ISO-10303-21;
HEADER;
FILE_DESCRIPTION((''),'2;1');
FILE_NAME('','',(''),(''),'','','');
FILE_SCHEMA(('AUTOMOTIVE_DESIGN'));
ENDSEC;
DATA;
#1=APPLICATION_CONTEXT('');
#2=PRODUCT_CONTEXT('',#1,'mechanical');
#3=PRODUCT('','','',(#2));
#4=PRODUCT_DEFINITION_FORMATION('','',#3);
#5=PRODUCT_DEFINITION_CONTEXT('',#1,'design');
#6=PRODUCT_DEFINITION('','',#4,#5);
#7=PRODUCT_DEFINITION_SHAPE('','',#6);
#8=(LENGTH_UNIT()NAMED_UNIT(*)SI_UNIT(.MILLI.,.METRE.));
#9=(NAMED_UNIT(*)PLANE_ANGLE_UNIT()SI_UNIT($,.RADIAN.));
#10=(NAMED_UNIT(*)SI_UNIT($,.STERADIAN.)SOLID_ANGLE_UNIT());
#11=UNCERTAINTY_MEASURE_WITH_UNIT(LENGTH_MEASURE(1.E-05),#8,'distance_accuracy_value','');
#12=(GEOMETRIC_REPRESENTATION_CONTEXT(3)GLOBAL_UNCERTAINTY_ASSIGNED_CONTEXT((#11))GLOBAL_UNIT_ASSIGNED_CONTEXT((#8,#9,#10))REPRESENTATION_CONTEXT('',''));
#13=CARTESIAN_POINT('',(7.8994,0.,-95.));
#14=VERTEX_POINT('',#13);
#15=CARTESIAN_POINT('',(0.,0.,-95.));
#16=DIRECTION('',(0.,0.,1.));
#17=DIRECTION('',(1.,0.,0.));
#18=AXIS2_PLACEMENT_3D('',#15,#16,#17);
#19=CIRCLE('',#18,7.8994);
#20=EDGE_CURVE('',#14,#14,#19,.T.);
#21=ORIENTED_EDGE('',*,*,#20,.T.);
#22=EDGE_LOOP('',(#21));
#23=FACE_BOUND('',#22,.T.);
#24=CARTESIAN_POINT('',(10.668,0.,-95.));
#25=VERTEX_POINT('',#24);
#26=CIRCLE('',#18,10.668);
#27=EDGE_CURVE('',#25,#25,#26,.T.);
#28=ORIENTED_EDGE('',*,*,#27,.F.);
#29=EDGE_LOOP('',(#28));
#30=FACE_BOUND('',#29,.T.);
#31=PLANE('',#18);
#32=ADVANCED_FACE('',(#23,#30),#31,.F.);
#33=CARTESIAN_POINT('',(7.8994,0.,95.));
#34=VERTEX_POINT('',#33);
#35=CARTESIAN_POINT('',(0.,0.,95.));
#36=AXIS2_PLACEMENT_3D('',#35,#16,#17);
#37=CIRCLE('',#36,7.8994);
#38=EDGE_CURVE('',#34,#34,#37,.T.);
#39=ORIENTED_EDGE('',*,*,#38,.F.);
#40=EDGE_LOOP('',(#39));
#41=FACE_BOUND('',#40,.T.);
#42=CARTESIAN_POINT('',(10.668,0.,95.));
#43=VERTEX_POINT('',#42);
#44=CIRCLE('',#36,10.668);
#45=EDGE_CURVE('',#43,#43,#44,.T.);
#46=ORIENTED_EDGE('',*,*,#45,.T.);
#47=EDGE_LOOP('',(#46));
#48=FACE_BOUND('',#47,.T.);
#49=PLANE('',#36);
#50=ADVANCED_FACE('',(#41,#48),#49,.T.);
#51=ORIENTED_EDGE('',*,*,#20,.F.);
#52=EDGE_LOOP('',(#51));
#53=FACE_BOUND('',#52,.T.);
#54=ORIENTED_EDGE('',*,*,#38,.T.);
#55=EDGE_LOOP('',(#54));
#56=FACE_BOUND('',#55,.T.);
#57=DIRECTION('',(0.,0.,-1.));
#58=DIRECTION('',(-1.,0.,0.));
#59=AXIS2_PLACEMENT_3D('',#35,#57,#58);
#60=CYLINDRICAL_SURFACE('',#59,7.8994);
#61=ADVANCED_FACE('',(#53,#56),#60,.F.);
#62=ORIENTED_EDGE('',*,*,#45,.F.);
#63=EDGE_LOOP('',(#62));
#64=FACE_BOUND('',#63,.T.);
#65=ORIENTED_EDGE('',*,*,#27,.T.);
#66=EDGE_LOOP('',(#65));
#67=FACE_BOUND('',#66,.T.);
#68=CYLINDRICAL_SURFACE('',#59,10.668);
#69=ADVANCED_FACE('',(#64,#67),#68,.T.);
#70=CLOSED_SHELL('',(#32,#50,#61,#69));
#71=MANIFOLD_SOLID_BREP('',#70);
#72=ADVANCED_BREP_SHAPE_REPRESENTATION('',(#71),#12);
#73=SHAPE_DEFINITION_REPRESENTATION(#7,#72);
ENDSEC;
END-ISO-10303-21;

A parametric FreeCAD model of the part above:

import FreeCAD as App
import Part
import Sketcher
from FreeCAD import Vector
Q = App.Units.Quantity

doc = App.newDocument("Part")
params = doc.addObject("Spreadsheet::Sheet", "Params")
for row, (alias, value) in enumerate([
    ("sketch1_diameter", "0.84 in"),
    ("sketch1_diameter2", "0.622 in"),
    ("pad1_length", "190 mm"),
], start=1):
    params.set(f"A{row}", alias)
    params.set(f"B{row}", "=" + value)
    params.setAlias(f"B{row}", alias)

body = doc.addObject("PartDesign::Body", "Body")

# Sketch on XY plane
sketch1 = doc.addObject("Sketcher::SketchObject", "Sketch")
body.addObject(sketch1)
sketch1.AttachmentSupport = (doc.XY_Plane, [""])
sketch1.MapMode = "FlatFace"
sketch1.addGeometry(Part.Circle(Vector(0, 0, 0), Vector(0, 0, 1), 11), False)
sketch1.addGeometry(Part.Circle(Vector(0, 0, 0), Vector(0, 0, 1), 8), False)
sketch1.addConstraint(Sketcher.Constraint("Coincident", 0, 3, -1, 1))
sketch1.addConstraint(Sketcher.Constraint("Coincident", 1, 3, -1, 1))
sketch1.addConstraint(Sketcher.Constraint("Diameter", 0, Q("0.84 in")))
sketch1.addConstraint(Sketcher.Constraint("Diameter", 1, Q("0.622 in")))
sketch1.setExpression("Constraints[2]", "Params.sketch1_diameter")
sketch1.setExpression("Constraints[3]", "Params.sketch1_diameter2")
pad1 = doc.addObject("PartDesign::Pad", "Pad")
body.addObject(pad1)
pad1.Profile = sketch1
pad1.setExpression("Length", "Params.pad1_length")
pad1.Midplane = True

doc.recompute()
